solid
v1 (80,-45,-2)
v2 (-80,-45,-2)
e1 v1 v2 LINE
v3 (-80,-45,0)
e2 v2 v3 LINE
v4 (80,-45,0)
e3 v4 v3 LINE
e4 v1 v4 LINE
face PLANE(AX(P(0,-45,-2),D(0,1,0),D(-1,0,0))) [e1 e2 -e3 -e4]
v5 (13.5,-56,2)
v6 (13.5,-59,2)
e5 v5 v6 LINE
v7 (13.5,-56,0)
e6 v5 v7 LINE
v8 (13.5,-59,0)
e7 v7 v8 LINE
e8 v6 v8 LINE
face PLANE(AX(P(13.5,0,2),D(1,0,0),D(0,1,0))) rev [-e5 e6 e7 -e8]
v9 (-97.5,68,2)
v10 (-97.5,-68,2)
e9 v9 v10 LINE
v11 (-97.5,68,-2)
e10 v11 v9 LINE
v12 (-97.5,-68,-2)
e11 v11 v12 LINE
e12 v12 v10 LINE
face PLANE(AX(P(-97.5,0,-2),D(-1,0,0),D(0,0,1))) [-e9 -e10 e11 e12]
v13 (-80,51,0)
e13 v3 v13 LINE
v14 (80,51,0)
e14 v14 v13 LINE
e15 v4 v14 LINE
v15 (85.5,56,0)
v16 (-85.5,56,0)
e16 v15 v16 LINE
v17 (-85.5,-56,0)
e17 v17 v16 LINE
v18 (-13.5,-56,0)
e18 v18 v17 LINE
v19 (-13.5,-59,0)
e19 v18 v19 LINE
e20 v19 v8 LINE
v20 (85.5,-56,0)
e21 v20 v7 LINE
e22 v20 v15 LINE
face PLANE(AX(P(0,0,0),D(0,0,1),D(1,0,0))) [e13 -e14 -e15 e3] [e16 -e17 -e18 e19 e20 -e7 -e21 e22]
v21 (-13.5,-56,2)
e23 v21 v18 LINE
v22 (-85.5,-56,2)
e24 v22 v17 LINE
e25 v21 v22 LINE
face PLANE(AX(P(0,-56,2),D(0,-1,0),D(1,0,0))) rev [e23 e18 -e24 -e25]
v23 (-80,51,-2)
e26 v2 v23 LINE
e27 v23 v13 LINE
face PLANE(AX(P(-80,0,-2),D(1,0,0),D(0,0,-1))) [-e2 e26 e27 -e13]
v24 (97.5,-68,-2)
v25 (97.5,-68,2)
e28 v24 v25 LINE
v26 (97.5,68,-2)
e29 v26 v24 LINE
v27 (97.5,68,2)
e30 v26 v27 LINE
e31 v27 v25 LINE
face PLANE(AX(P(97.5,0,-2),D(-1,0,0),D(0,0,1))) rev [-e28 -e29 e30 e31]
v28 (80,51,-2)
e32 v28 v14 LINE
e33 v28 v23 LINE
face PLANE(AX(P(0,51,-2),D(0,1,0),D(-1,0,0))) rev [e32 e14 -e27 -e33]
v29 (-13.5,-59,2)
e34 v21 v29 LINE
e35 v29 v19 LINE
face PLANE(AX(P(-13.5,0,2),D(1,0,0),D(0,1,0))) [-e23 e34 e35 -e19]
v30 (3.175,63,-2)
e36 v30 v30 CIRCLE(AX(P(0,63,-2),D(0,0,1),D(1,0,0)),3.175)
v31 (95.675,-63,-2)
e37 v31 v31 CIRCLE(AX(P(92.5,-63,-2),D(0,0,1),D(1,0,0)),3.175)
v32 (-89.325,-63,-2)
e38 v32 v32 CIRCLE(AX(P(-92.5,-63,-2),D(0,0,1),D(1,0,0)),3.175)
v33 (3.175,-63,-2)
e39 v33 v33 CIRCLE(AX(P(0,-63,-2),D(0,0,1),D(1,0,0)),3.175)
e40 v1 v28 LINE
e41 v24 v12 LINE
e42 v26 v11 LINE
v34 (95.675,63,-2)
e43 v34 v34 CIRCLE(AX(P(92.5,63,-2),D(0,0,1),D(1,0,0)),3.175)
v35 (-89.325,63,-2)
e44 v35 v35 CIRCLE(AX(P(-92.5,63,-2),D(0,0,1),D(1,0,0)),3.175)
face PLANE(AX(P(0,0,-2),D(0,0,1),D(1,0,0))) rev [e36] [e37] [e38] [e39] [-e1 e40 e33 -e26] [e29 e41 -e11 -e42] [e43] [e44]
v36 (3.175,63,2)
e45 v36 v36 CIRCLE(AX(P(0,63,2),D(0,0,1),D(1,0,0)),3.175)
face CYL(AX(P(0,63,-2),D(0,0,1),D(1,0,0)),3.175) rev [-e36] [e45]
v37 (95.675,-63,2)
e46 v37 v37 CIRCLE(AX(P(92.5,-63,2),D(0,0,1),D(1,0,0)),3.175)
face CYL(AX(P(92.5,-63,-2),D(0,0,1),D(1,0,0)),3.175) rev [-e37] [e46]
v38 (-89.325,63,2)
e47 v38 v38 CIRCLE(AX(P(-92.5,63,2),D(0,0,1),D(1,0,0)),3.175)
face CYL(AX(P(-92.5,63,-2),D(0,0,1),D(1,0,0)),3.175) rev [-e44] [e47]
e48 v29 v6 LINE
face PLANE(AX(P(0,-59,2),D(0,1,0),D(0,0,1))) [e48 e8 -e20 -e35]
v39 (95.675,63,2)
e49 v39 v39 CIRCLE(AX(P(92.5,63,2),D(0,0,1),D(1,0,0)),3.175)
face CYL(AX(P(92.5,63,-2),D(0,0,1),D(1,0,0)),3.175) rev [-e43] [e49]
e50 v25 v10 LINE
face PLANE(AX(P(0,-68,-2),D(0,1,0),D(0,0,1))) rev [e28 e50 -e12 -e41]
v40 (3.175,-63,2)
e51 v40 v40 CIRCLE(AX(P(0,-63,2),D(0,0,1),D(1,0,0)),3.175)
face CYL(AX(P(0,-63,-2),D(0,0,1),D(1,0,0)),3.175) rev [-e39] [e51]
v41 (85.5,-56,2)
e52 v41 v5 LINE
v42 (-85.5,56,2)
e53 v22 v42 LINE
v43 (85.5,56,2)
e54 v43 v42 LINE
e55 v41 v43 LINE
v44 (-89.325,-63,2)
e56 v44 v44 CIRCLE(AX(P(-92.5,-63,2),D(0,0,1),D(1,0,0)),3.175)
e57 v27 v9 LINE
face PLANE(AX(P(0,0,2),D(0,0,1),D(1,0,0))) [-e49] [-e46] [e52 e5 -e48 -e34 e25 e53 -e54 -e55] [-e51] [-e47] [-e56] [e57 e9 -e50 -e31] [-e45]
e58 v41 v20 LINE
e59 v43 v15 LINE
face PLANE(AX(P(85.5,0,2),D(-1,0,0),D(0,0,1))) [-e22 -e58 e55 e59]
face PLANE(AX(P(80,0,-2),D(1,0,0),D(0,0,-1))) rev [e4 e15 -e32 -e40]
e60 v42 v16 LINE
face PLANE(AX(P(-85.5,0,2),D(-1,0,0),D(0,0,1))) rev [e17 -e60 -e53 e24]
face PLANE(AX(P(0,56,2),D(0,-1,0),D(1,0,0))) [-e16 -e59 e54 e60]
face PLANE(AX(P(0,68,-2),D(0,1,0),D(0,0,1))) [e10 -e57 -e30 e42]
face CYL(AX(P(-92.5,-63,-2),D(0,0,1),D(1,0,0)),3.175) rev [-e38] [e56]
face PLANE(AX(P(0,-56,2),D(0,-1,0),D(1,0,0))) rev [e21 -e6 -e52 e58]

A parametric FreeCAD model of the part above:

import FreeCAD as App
import Part
import Sketcher

V = App.Vector

doc = App.newDocument("Part")
body = doc.addObject("PartDesign::Body", "Body")

sketch1 = body.newObject("Sketcher::SketchObject", "Sketch")
sketch1.AttachmentSupport = (doc.getObject("XY_Plane"), [""])
sketch1.MapMode = "FlatFace"
sketch1.addGeometry([
    Part.LineSegment(V(-97.5, 68, 0), V(-97.5, -68, 0)),
    Part.LineSegment(V(-97.5, -68, 0), V(97.5, -68, 0)),
    Part.LineSegment(V(97.5, -68, 0), V(97.5, 68, 0)),
    Part.LineSegment(V(97.5, 68, 0), V(-97.5, 68, 0)),
    Part.LineSegment(V(-80, 51, 0), V(80, 51, 0)),
    Part.LineSegment(V(80, 51, 0), V(80, -45, 0)),
    Part.LineSegment(V(80, -45, 0), V(-80, -45, 0)),
    Part.LineSegment(V(-80, -45, 0), V(-80, 51, 0)),
], False)
sketch1.addConstraint([
    Sketcher.Constraint("Coincident", 0, 2, 1, 1),
    Sketcher.Constraint("Coincident", 1, 2, 2, 1),
    Sketcher.Constraint("Coincident", 2, 2, 3, 1),
    Sketcher.Constraint("Coincident", 3, 2, 0, 1),
    Sketcher.Constraint("Coincident", 4, 2, 5, 1),
    Sketcher.Constraint("Coincident", 5, 2, 6, 1),
    Sketcher.Constraint("Coincident", 6, 2, 7, 1),
    Sketcher.Constraint("Coincident", 7, 2, 4, 1),
    Sketcher.Constraint("Vertical", 0),
    Sketcher.Constraint("Horizontal", 1),
    Sketcher.Constraint("Vertical", 2),
    Sketcher.Constraint("Horizontal", 3),
    Sketcher.Constraint("Horizontal", 4),
    Sketcher.Constraint("Vertical", 5),
    Sketcher.Constraint("Horizontal", 6),
    Sketcher.Constraint("Vertical", 7),
    Sketcher.Constraint("Symmetric", 0, 2, 2, 2, -1, 1),
    Sketcher.Constraint("DistanceX", 1, 1, 1, 2, 195.0),
    Sketcher.Constraint("DistanceX", 4, 1, 4, 2, 160.0),
    Sketcher.Constraint("DistanceY", 0, 2, 0, 1, 136.0),
    Sketcher.Constraint("DistanceY", 5, 2, 5, 1, 96.0),
    Sketcher.Constraint("DistanceX", -1, 1, 4, 2, 80.0),
    Sketcher.Constraint("DistanceY", -1, 1, 4, 2, 51.0),
])
pad1 = body.newObject("PartDesign::Pad", "Pad")
pad1.Profile = sketch1
pad1.Length = 2
pad1.Reversed = True

sketch2 = body.newObject("Sketcher::SketchObject", "Sketch001")
sketch2.AttachmentSupport = (doc.getObject("XY_Plane"), [""])
sketch2.MapMode = "FlatFace"
sketch2.addGeometry([
    Part.LineSegment(V(-97.5, 68, 0), V(-97.5, -68, 0)),
    Part.LineSegment(V(-97.5, -68, 0), V(97.5, -68, 0)),
    Part.LineSegment(V(97.5, -68, 0), V(97.5, 68, 0)),
    Part.LineSegment(V(97.5, 68, 0), V(-97.5, 68, 0)),
    Part.LineSegment(V(-85.5, 56, 0), V(85.5, 56, 0)),
    Part.LineSegment(V(85.5, 56, 0), V(85.5, -56, 0)),
    Part.LineSegment(V(85.5, -56, 0), V(13.5, -56, 0)),
    Part.LineSegment(V(13.5, -56, 0), V(13.5, -59, 0)),
    Part.LineSegment(V(13.5, -59, 0), V(-13.5, -59, 0)),
    Part.LineSegment(V(-13.5, -59, 0), V(-13.5, -56, 0)),
    Part.LineSegment(V(-13.5, -56, 0), V(-85.5, -56, 0)),
    Part.LineSegment(V(-85.5, -56, 0), V(-85.5, 56, 0)),
], False)
sketch2.addConstraint([
    Sketcher.Constraint("Coincident", 0, 2, 1, 1),
    Sketcher.Constraint("Coincident", 1, 2, 2, 1),
    Sketcher.Constraint("Coincident", 2, 2, 3, 1),
    Sketcher.Constraint("Coincident", 3, 2, 0, 1),
    Sketcher.Constraint("Coincident", 4, 2, 5, 1),
    Sketcher.Constraint("Coincident", 5, 2, 6, 1),
    Sketcher.Constraint("Coincident", 6, 2, 7, 1),
    Sketcher.Constraint("Coincident", 7, 2, 8, 1),
    Sketcher.Constraint("Coincident", 8, 2, 9, 1),
    Sketcher.Constraint("Coincident", 9, 2, 10, 1),
    Sketcher.Constraint("Coincident", 10, 2, 11, 1),
    Sketcher.Constraint("Coincident", 11, 2, 4, 1),
    Sketcher.Constraint("Vertical", 0),
    Sketcher.Constraint("Horizontal", 1),
    Sketcher.Constraint("Vertical", 2),
    Sketcher.Constraint("Horizontal", 3),
    Sketcher.Constraint("Horizontal", 4),
    Sketcher.Constraint("Vertical", 5),
    Sketcher.Constraint("Horizontal", 6),
    Sketcher.Constraint("Vertical", 7),
    Sketcher.Constraint("Horizontal", 8),
    Sketcher.Constraint("Vertical", 9),
    Sketcher.Constraint("Horizontal", 10),
    Sketcher.Constraint("Vertical", 11),
    Sketcher.Constraint("Symmetric", 0, 2, 2, 2, -1, 1),
    Sketcher.Constraint("Symmetric", 4, 2, 10, 2, -1, 1),
    Sketcher.Constraint("Symmetric", 6, 2, 9, 2, -2),
    Sketcher.Constraint("DistanceX", 1, 1, 1, 2, 195.0),
    Sketcher.Constraint("DistanceX", 4, 1, 4, 2, 171.0),
    Sketcher.Constraint("DistanceX", 6, 2, 6, 1, 72.0),
    Sketcher.Constraint("DistanceY", 0, 2, 0, 1, 136.0),
    Sketcher.Constraint("DistanceY", 5, 2, 5, 1, 112.0),
    Sketcher.Constraint("DistanceY", 7, 2, 7, 1, 3.0),
])
pad2 = body.newObject("PartDesign::Pad", "Pad001")
pad2.Profile = sketch2
pad2.Length = 2

sketch3 = body.newObject("Sketcher::SketchObject", "Sketch002")
sketch3.AttachmentSupport = (doc.getObject("XY_Plane"), [""])
sketch3.MapMode = "FlatFace"
sketch3.AttachmentOffset = App.Placement(V(0, 0, 2), App.Rotation())
sketch3.addGeometry([
    Part.Circle(V(-92.5, 63, 0), V(0, 0, 1), 3.175),
    Part.Circle(V(0, 63, 0), V(0, 0, 1), 3.175),
    Part.Circle(V(92.5, 63, 0), V(0, 0, 1), 3.175),
    Part.Circle(V(92.5, -63, 0), V(0, 0, 1), 3.175),
    Part.Circle(V(0, -63, 0), V(0, 0, 1), 3.175),
    Part.Circle(V(-92.5, -63, 0), V(0, 0, 1), 3.175),
], False)
sketch3.addConstraint([
    Sketcher.Constraint("Equal", 0, 1),
    Sketcher.Constraint("Equal", 1, 2),
    Sketcher.Constraint("Equal", 2, 3),
    Sketcher.Constraint("Equal", 3, 4),
    Sketcher.Constraint("Equal", 4, 5),
    Sketcher.Constraint("Symmetric", 0, 3, 3, 3, -1, 1),
    Sketcher.Constraint("Symmetric", 1, 3, 4, 3, -1, 1),
    Sketcher.Constraint("Symmetric", 2, 3, 5, 3, -1, 1),
    Sketcher.Constraint("Symmetric", 0, 3, 2, 3, -2),
    Sketcher.Constraint("PointOnObject", 1, 3, -2),
    Sketcher.Constraint("Horizontal", 0, 3, 1, 3),
    Sketcher.Constraint("Diameter", 0, 6.35),
    Sketcher.Constraint("DistanceY", -1, 1, 0, 3, 63.0),
    Sketcher.Constraint("DistanceX", 0, 3, 2, 3, 185.0),
])
pocket1 = body.newObject("PartDesign::Pocket", "Pocket")
pocket1.Profile = sketch3
pocket1.Type = "ThroughAll"

doc.recompute()
